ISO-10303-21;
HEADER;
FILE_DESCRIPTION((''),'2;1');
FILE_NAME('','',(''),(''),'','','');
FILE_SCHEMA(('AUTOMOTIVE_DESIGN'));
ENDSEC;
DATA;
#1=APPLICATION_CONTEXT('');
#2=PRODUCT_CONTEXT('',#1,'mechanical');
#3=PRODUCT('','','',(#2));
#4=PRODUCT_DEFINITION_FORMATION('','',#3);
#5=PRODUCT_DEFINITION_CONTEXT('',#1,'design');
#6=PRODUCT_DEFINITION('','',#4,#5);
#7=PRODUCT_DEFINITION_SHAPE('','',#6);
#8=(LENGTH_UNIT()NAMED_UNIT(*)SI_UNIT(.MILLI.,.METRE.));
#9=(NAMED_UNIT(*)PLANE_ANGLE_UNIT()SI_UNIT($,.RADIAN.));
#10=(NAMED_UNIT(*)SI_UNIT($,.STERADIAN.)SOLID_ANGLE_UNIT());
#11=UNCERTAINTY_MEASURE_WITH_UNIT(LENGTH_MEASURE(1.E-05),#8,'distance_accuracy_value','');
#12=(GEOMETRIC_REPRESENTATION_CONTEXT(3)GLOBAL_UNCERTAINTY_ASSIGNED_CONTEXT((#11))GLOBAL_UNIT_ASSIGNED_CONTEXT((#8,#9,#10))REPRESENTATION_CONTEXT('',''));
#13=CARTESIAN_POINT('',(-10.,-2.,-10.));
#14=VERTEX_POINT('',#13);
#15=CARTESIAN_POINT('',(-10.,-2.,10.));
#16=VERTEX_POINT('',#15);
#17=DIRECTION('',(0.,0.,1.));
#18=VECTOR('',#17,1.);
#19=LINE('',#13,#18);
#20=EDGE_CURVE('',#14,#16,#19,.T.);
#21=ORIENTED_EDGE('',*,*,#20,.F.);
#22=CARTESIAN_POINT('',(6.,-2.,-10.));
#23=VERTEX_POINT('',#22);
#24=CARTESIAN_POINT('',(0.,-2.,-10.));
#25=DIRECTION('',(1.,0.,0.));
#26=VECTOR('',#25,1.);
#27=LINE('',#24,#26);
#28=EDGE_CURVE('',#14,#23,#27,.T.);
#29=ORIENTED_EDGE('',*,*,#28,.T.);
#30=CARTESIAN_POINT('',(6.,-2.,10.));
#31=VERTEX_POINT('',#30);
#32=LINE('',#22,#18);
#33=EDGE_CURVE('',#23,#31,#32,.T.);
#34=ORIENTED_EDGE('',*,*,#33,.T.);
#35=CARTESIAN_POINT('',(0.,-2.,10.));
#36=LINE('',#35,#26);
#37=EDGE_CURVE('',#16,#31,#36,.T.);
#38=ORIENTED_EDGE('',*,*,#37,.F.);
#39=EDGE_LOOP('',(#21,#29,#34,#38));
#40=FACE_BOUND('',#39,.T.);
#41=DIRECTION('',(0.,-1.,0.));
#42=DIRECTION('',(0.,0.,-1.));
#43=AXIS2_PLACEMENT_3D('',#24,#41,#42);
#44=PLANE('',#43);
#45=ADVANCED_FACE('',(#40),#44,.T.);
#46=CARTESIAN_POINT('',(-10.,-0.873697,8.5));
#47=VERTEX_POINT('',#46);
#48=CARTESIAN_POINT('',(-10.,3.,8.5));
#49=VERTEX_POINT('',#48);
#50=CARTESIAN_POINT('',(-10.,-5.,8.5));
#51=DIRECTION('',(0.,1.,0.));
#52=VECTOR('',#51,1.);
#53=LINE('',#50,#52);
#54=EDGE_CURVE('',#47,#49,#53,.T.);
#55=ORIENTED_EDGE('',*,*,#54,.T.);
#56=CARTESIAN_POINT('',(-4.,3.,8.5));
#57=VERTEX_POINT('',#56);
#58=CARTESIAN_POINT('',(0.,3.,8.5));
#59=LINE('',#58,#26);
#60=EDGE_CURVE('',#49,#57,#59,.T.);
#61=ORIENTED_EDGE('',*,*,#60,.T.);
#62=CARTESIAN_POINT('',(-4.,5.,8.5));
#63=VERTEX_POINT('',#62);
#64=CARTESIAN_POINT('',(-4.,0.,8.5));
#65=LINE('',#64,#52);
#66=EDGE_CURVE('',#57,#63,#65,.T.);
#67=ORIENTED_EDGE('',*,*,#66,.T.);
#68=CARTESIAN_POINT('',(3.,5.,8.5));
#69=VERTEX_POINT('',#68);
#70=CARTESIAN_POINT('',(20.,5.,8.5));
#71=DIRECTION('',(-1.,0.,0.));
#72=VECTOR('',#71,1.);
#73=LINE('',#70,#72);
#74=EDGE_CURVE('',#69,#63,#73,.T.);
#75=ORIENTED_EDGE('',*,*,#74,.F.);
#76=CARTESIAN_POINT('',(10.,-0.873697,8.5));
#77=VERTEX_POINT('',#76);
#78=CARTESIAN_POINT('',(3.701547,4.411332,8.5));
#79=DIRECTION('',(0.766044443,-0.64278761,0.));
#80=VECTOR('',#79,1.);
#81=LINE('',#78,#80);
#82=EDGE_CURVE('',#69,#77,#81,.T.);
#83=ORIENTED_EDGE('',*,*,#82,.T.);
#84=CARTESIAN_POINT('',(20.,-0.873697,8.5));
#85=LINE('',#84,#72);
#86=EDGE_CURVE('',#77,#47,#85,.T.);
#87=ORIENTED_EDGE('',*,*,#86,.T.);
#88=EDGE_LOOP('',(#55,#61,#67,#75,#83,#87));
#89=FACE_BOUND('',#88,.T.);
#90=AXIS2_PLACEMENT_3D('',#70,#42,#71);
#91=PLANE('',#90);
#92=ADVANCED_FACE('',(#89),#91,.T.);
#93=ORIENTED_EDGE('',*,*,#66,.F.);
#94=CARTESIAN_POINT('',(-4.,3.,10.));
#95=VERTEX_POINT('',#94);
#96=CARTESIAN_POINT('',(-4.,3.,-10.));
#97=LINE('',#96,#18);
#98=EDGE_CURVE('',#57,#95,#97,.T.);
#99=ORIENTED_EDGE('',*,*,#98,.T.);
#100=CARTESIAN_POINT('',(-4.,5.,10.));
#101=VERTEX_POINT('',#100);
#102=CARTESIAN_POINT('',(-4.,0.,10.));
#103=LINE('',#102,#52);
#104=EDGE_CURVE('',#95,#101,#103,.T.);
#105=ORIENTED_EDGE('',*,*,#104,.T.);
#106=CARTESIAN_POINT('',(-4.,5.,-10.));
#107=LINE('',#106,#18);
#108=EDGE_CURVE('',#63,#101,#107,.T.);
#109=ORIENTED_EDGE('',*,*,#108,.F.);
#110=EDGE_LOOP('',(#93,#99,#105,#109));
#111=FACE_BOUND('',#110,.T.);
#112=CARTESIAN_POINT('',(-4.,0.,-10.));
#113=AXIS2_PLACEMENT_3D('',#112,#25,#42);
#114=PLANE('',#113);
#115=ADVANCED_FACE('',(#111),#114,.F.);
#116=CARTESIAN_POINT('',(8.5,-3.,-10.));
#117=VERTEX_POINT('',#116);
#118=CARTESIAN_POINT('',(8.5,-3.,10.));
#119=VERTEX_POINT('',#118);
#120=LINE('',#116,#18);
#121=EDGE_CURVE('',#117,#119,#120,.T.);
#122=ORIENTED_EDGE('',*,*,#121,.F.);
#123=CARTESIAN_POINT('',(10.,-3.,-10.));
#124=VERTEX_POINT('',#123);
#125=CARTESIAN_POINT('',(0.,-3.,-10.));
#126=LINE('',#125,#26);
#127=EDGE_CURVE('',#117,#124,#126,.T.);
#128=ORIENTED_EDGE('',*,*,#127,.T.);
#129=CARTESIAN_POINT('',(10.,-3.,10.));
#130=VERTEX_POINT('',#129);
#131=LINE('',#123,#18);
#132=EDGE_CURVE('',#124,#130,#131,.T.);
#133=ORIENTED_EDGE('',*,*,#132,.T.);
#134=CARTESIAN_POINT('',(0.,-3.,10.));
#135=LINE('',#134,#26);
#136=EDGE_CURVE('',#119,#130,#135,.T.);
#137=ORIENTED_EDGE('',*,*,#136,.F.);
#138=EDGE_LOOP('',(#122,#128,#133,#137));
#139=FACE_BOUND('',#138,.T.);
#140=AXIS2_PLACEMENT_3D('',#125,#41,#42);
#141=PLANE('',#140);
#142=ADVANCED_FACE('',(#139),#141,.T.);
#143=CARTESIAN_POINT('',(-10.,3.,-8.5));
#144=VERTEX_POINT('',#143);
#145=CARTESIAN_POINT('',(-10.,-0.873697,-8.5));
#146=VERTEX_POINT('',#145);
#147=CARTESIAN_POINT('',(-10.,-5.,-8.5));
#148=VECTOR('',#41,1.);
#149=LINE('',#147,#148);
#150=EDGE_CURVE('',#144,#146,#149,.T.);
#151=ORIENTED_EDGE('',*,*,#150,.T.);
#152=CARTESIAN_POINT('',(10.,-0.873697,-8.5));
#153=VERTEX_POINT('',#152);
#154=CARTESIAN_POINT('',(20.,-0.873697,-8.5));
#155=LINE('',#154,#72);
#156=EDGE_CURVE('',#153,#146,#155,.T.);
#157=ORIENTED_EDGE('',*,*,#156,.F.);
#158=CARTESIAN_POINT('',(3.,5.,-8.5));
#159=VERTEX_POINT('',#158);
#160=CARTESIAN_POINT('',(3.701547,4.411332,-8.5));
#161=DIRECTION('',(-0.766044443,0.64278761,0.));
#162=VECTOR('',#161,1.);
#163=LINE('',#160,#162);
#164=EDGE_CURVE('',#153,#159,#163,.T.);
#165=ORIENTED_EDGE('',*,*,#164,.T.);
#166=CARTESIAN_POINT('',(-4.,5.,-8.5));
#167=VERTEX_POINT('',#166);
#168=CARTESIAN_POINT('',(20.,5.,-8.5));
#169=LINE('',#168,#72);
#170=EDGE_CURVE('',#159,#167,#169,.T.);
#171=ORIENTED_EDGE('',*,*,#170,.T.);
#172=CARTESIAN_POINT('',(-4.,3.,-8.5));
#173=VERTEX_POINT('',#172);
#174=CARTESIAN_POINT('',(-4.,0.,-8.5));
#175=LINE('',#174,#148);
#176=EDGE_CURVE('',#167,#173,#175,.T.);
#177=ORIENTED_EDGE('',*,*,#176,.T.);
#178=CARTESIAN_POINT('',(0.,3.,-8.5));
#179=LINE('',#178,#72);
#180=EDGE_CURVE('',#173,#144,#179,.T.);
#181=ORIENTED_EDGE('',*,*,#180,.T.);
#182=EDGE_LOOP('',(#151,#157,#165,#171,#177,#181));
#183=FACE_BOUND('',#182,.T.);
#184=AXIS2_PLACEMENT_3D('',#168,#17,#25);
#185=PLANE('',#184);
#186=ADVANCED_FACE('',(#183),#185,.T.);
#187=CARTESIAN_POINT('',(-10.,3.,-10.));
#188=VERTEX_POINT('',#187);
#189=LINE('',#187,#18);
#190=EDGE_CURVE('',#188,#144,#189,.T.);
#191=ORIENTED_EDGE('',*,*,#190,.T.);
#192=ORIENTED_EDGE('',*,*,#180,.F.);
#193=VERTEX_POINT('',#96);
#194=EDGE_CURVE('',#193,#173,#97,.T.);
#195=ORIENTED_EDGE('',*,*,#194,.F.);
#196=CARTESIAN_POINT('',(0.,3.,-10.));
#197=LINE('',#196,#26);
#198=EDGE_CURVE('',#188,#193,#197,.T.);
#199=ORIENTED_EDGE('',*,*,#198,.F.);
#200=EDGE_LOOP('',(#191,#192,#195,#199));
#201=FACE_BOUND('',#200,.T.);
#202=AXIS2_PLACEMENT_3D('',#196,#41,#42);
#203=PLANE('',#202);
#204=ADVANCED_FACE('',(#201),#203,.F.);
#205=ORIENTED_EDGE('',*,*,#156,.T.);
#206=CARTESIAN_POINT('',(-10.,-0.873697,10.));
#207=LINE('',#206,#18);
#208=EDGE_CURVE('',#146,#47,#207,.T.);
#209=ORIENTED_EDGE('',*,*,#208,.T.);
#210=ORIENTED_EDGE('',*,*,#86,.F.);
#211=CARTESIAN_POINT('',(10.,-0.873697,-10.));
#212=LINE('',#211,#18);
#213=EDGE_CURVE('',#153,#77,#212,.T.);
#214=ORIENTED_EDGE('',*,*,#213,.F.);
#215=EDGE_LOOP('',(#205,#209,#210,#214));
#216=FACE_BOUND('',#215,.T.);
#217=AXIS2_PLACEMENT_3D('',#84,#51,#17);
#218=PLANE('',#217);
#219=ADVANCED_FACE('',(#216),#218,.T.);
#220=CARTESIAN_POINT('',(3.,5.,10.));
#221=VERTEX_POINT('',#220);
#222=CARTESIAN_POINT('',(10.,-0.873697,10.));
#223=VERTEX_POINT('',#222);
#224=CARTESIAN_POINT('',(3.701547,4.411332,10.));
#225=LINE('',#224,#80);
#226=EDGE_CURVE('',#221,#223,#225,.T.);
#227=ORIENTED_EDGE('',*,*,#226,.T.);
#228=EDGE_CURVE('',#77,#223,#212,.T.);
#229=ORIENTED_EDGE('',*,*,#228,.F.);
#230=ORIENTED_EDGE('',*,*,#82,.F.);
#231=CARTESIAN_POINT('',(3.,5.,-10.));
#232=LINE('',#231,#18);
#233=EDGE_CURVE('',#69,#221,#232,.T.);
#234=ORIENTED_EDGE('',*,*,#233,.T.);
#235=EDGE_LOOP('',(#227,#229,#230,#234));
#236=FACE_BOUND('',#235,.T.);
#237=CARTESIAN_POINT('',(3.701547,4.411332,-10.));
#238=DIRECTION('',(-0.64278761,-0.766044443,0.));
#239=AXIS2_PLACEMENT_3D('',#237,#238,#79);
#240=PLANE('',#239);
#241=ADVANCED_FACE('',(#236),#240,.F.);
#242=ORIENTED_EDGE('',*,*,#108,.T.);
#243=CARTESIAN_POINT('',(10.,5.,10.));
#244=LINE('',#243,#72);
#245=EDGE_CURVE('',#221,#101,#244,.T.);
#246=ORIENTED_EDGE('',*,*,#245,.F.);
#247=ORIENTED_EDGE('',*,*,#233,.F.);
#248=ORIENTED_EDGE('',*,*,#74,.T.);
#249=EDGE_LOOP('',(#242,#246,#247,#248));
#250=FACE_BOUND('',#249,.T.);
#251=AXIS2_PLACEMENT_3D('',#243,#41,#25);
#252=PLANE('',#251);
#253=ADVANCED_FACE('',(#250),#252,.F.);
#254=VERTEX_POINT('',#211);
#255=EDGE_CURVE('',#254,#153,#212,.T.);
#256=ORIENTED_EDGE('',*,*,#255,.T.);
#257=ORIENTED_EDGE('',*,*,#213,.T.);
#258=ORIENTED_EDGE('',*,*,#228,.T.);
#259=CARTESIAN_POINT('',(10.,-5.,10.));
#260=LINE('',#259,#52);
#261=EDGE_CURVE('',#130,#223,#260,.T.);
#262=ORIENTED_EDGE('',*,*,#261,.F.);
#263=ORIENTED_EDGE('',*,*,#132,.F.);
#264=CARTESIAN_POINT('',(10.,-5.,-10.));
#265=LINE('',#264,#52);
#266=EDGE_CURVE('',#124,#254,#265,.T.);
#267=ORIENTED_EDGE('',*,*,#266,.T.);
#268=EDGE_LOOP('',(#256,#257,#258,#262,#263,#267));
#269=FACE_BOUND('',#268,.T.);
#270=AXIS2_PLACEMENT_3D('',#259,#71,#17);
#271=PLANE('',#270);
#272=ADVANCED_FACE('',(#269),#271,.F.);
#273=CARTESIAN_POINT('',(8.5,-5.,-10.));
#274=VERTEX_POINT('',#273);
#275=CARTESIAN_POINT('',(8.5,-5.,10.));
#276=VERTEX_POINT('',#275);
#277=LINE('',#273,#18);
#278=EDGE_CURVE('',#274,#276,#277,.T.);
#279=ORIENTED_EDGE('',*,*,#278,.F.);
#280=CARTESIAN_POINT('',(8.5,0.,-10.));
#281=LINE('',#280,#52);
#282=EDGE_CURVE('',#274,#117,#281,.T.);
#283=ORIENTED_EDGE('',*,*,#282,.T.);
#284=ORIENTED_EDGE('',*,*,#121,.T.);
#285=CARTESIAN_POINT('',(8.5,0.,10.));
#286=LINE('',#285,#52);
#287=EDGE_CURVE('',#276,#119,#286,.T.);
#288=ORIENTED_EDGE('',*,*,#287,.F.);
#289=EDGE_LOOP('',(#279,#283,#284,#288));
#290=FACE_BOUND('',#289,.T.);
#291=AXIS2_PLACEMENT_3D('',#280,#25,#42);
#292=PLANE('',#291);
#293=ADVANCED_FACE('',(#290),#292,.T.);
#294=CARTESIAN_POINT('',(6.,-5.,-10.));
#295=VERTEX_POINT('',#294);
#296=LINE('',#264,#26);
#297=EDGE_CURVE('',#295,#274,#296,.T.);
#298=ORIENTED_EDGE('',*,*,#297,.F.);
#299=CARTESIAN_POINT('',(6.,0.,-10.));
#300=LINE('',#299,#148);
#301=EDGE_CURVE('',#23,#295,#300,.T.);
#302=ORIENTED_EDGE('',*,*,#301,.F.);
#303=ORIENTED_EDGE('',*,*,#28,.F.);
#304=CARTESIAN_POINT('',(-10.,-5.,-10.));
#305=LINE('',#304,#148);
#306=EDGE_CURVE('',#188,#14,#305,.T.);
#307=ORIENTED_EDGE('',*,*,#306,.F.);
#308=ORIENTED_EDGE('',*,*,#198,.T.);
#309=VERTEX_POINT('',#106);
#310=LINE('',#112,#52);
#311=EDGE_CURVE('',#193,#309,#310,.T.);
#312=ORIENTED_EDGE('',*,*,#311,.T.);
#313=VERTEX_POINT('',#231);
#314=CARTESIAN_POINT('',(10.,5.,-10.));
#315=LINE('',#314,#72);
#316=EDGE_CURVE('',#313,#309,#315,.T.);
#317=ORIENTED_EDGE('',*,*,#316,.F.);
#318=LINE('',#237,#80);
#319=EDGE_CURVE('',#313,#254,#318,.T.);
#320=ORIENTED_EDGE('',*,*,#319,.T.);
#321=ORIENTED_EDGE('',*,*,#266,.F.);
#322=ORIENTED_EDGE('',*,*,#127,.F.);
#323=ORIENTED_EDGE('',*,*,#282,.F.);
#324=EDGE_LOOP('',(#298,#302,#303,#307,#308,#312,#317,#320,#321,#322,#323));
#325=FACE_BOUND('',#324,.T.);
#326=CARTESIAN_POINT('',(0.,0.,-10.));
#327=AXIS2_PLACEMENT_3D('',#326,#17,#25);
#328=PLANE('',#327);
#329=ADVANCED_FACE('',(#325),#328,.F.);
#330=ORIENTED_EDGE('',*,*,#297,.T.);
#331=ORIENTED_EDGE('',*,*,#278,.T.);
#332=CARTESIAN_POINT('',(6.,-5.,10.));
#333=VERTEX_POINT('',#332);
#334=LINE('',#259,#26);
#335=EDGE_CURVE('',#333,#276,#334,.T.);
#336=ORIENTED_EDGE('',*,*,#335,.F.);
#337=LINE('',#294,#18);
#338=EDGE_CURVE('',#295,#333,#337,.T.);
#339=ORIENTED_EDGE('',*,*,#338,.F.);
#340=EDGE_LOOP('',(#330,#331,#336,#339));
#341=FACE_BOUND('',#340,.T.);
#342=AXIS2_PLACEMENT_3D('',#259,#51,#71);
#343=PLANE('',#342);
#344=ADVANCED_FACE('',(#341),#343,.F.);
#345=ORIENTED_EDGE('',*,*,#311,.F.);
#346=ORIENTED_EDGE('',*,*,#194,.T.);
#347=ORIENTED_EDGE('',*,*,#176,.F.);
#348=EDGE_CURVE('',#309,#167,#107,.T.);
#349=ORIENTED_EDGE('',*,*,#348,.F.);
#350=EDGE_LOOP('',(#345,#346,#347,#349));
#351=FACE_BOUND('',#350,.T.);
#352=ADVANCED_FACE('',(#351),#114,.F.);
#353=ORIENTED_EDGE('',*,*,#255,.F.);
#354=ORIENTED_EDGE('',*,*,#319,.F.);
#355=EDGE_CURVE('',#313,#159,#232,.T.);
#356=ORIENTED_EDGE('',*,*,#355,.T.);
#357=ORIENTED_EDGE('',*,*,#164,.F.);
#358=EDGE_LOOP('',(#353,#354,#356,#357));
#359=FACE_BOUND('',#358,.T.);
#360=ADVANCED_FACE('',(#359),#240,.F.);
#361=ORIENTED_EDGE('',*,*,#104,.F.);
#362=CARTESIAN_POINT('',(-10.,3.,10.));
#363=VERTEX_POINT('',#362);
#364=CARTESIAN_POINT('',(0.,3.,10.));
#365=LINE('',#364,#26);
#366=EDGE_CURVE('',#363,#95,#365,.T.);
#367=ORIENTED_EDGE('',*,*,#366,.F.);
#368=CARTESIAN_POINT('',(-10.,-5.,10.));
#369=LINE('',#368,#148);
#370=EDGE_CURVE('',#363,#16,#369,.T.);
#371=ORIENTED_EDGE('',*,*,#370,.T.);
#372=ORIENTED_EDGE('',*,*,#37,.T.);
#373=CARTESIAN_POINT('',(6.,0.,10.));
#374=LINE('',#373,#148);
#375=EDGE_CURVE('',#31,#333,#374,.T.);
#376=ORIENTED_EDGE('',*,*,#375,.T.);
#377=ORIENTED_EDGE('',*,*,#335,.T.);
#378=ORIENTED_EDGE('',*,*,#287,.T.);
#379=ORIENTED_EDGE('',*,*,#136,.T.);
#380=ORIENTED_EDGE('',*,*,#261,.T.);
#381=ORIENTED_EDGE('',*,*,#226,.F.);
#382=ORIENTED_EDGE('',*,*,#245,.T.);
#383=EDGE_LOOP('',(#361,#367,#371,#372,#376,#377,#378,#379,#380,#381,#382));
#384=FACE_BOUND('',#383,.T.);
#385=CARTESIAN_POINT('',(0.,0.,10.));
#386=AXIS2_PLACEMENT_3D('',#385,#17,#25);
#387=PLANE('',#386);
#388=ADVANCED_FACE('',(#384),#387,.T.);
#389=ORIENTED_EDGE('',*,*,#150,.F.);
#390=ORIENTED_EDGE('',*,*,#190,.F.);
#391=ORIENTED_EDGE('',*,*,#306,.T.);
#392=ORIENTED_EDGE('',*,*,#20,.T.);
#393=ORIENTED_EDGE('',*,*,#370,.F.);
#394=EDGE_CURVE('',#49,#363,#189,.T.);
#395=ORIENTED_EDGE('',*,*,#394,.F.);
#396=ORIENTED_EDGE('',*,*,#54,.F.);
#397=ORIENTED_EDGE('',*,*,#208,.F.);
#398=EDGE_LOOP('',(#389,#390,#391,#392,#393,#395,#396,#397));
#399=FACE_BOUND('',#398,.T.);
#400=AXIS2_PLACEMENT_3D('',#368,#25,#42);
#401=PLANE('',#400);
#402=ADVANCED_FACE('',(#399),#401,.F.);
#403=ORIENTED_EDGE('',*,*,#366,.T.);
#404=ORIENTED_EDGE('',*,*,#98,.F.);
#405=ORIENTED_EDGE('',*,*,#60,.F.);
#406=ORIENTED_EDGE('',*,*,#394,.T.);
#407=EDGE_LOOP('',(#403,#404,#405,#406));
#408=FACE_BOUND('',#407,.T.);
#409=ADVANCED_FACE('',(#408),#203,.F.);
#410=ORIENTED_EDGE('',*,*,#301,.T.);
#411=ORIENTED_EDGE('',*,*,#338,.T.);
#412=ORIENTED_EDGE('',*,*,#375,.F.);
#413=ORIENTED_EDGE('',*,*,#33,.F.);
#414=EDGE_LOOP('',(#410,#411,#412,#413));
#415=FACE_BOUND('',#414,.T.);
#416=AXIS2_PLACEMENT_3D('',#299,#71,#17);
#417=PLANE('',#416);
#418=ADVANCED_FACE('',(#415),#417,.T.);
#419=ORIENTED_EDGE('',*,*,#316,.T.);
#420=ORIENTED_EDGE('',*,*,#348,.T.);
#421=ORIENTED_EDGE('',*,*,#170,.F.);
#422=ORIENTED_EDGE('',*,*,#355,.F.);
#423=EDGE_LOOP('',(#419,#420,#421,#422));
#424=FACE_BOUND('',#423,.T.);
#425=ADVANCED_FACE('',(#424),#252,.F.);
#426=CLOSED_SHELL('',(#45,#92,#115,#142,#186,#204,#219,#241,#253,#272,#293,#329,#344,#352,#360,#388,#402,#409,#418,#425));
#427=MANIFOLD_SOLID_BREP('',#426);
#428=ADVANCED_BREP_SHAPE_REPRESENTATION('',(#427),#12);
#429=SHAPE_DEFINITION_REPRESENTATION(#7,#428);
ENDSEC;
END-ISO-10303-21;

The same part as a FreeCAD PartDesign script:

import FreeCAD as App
import Part
import Sketcher

V = App.Vector
Q = App.Units.Quantity


def add_polygon(sketch, points):
    """Adds a closed chain of lines whose ends are joined by coincident constraints."""
    first, n = sketch.GeometryCount, len(points)
    for a, b in zip(points, points[1:] + points[:1]):
        sketch.addGeometry(Part.LineSegment(App.Vector(*a, 0), App.Vector(*b, 0)), False)
    for i in range(n):
        sketch.addConstraint(Sketcher.Constraint("Coincident", first + i, 2, first + (i + 1) % n, 1))

doc = App.newDocument("Part")
body = doc.addObject("PartDesign::Body", "Body")

# Sketch on XY plane
sketch1 = doc.addObject("Sketcher::SketchObject", "Sketch")
body.addObject(sketch1)
sketch1.AttachmentSupport = (doc.XY_Plane, [""])
sketch1.MapMode = "FlatFace"
add_polygon(sketch1, [(-10, 5), (-10, -5), (10, -5), (10, 5)])  # lines 0-3
sketch1.addConstraint(Sketcher.Constraint("Vertical", 0))
sketch1.addConstraint(Sketcher.Constraint("Horizontal", 1))
sketch1.addConstraint(Sketcher.Constraint("Vertical", 2))
sketch1.addConstraint(Sketcher.Constraint("Horizontal", 3))
sketch1.addConstraint(Sketcher.Constraint("Symmetric", 0, 2, 2, 2, -1, 1))
sketch1.addConstraint(Sketcher.Constraint("DistanceX", 1, 1, 1, 2, 20.0))
sketch1.addConstraint(Sketcher.Constraint("DistanceY", 0, 2, 0, 1, 10.0))
pad1 = doc.addObject("PartDesign::Pad", "Pad")
body.addObject(pad1)
pad1.Profile = sketch1
pad1.Length = 20
pad1.Midplane = True

# Sketch on XY plane
sketch2 = doc.addObject("Sketcher::SketchObject", "Sketch001")
body.addObject(sketch2)
sketch2.AttachmentSupport = (doc.XY_Plane, [""])
sketch2.MapMode = "FlatFace"
sketch2.AttachmentOffset = App.Placement(V(0, 0, 10), App.Rotation())
add_polygon(sketch2, [(-10, 5), (-10, 3), (-4, 3), (-4, 5)])  # lines 0-3
add_polygon(sketch2, [(10, 5), (3, 5), (10, -0.9)])  # lines 4-6
add_polygon(sketch2, [(-10, -2), (-10, -5), (6, -5), (6, -2)])  # lines 7-10
add_polygon(sketch2, [(8.5, -3), (8.5, -5), (10, -5), (10, -3)])  # lines 11-14
sketch2.addConstraint(Sketcher.Constraint("Vertical", 0))
sketch2.addConstraint(Sketcher.Constraint("Horizontal", 1))
sketch2.addConstraint(Sketcher.Constraint("Vertical", 2))
sketch2.addConstraint(Sketcher.Constraint("Horizontal", 3))
sketch2.addConstraint(Sketcher.Constraint("Horizontal", 4))
sketch2.addConstraint(Sketcher.Constraint("Vertical", 6))
sketch2.addConstraint(Sketcher.Constraint("Vertical", 7))
sketch2.addConstraint(Sketcher.Constraint("Horizontal", 8))
sketch2.addConstraint(Sketcher.Constraint("Vertical", 9))
sketch2.addConstraint(Sketcher.Constraint("Horizontal", 10))
sketch2.addConstraint(Sketcher.Constraint("Vertical", 11))
sketch2.addConstraint(Sketcher.Constraint("Horizontal", 12))
sketch2.addConstraint(Sketcher.Constraint("Vertical", 13))
sketch2.addConstraint(Sketcher.Constraint("Horizontal", 14))
sketch2.addConstraint(Sketcher.Constraint("Symmetric", 6, 2, 7, 2, -1, 1))
sketch2.addConstraint(Sketcher.Constraint("Symmetric", 3, 2, 12, 2, -1, 1))
sketch2.addConstraint(Sketcher.Constraint("Symmetric", 3, 2, 6, 2, -2))
sketch2.addConstraint(Sketcher.Constraint("Equal", 2, 11))
sketch2.addConstraint(Sketcher.Constraint("DistanceX", 1, 1, 1, 2, 6.0))
sketch2.addConstraint(Sketcher.Constraint("DistanceX", 4, 2, 4, 1, 7.0))
sketch2.addConstraint(Sketcher.Constraint("DistanceX", 8, 1, 8, 2, 16.0))
sketch2.addConstraint(Sketcher.Constraint("DistanceY", 0, 2, 0, 1, 2.0))
sketch2.addConstraint(Sketcher.Constraint("DistanceY", 7, 2, 7, 1, 3.0))
sketch2.addConstraint(Sketcher.Constraint("Angle", 5, Q("-40 deg")))
sketch2.addConstraint(Sketcher.Constraint("DistanceX", 12, 1, 12, 2, 1.5))
sketch2.addConstraint(Sketcher.Constraint("DistanceX", 0, 2, -1, 1, 10.0))
sketch2.addConstraint(Sketcher.Constraint("DistanceY", -1, 1, 0, 2, 3.0))
pocket1 = doc.addObject("PartDesign::Pocket", "Pocket")
body.addObject(pocket1)
pocket1.Profile = sketch2
pocket1.Type = "ThroughAll"

# Sketch on YZ plane
sketch3 = doc.addObject("Sketcher::SketchObject", "Sketch002")
body.addObject(sketch3)
sketch3.AttachmentSupport = (doc.YZ_Plane, [""])
sketch3.MapMode = "FlatFace"
add_polygon(sketch3, [(5, 8), (-1, 8), (-1, -8), (5, -8)])  # lines 0-3
sketch3.addConstraint(Sketcher.Constraint("Horizontal", 0))
sketch3.addConstraint(Sketcher.Constraint("Vertical", 1))
sketch3.addConstraint(Sketcher.Constraint("Horizontal", 2))
sketch3.addConstraint(Sketcher.Constraint("Vertical", 3))
sketch3.addConstraint(Sketcher.Constraint("DistanceY", 1, 2, 1, 1, 17.0))
sketch3.addConstraint(Sketcher.Constraint("DistanceX", -1, 1, 2, 2, 5.0))
sketch3.addConstraint(Sketcher.Constraint("DistanceY", -1, 1, 0, 2, 8.5))
sketch3.addConstraint(Sketcher.Constraint("DistanceX", 0, 2, 0, 1, 5.873697))
pocket2 = doc.addObject("PartDesign::Pocket", "Pocket001")
body.addObject(pocket2)
pocket2.Profile = sketch3
pocket2.Type = "ThroughAll"
pocket2.Midplane = True

doc.recompute()
